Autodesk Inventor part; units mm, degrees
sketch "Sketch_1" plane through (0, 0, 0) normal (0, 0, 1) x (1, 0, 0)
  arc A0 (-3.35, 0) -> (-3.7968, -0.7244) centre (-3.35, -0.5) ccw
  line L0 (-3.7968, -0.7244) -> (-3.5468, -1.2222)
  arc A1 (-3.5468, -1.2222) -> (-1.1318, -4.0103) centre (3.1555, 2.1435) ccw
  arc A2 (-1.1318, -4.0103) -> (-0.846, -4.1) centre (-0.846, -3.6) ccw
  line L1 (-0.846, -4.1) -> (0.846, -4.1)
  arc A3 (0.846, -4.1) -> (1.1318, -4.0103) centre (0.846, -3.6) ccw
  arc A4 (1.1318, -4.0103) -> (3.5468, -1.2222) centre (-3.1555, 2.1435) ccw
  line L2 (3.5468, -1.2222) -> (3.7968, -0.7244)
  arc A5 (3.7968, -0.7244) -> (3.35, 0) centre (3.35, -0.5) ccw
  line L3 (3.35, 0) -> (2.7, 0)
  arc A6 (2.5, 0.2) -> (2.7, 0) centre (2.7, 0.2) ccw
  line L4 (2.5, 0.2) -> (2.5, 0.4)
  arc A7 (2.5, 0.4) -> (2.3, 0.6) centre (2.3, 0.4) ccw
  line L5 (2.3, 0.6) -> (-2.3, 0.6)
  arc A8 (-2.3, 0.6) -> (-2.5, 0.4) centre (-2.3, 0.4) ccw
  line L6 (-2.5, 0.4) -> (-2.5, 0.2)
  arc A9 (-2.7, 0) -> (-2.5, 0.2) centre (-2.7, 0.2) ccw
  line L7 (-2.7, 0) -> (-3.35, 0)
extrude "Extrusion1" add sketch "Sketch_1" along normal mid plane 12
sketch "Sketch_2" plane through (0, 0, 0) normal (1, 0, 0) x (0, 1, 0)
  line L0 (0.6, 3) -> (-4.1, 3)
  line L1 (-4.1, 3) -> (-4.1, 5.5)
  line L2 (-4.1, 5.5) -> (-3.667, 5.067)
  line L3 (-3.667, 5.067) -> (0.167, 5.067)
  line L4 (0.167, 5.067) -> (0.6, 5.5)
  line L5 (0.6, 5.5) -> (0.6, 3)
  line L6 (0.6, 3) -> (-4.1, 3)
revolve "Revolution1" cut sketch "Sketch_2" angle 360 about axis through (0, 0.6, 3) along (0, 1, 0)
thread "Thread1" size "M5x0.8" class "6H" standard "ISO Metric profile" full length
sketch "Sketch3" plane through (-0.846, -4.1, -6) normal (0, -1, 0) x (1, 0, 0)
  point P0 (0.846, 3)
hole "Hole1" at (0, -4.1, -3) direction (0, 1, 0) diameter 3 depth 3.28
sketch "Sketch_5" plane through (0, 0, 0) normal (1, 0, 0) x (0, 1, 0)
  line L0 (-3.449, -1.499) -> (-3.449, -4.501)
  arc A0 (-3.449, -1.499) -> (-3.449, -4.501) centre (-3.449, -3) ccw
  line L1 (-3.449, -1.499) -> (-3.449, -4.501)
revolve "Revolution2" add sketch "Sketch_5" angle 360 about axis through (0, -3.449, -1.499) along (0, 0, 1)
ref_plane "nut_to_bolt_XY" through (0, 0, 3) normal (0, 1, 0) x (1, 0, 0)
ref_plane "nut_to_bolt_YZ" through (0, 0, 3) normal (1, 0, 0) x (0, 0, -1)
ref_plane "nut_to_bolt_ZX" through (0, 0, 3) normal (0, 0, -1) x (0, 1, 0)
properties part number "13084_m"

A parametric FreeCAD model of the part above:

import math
import FreeCAD as App
import Part
import Sketcher


def add_polygon(sketch, points):
    """Adds a closed chain of lines whose ends are joined by coincident constraints."""
    first, n = sketch.GeometryCount, len(points)
    for a, b in zip(points, points[1:] + points[:1]):
        sketch.addGeometry(Part.LineSegment(App.Vector(*a, 0), App.Vector(*b, 0)), False)
    for i in range(n):
        sketch.addConstraint(Sketcher.Constraint("Coincident", first + i, 2, first + (i + 1) % n, 1))

doc = App.newDocument("Part")
params = doc.addObject("Spreadsheet::Sheet", "Params")
for row, (alias, value) in enumerate([
    ("sketch1_radius", "0.5 mm"),
    ("sketch1_radius2", "0.5 mm"),
    ("sketch1_radius3", "0.5 mm"),
    ("sketch1_radius4", "0.5 mm"),
    ("sketch1_radius5", "0.2 mm"),
    ("pad1_length", "12 mm"),
    ("sketch2_width", "4.7 mm"),
    ("sketch2_height", "2.5 mm"),
    ("groove_angle", "360 deg"),
    ("sketch3_diameter", "3 mm"),
    ("hole_diameter", "3 mm"),
    ("hole_depth", "3.28 mm"),
    ("revolution_angle", "360 deg"),
], start=1):
    params.set(f"A{row}", alias)
    params.set(f"B{row}", "=" + value)
    params.setAlias(f"B{row}", alias)

body = doc.addObject("PartDesign::Body", "Body")

sketch1 = doc.addObject("Sketcher::SketchObject", "Sketch")
body.addObject(sketch1)
sketch1.AttachmentSupport = (doc.XY_Plane, [""])
sketch1.MapMode = "FlatFace"
sketch1.addGeometry([
    Part.LineSegment(App.Vector(-2.7, 0, 0), App.Vector(-3.35, 0, 0)),
    Part.ArcOfCircle(Part.Circle(App.Vector(-3.35, -0.5, 0), App.Vector(0, 0, 1), 0.5), math.radians(90), math.radians(206.667548)),
    Part.LineSegment(App.Vector(-3.7968, -0.7244, 0), App.Vector(-3.5468, -1.2222, 0)),
    Part.ArcOfCircle(Part.Circle(App.Vector(3.156804, 2.144372, 0), App.Vector(0, 0, 1), 7.501474), math.radians(-153.334044), math.radians(-124.868961)),
    Part.ArcOfCircle(Part.Circle(App.Vector(-0.846, -3.6, 0), App.Vector(0, 0, 1), 0.500028), math.radians(-124.859661), math.radians(-90)),
    Part.LineSegment(App.Vector(-0.846, -4.1, 0), App.Vector(0.846, -4.1, 0)),
    Part.ArcOfCircle(Part.Circle(App.Vector(0.846, -3.6, 0), App.Vector(0, 0, 1), 0.5), math.radians(-90), math.radians(-55.140339)),
    Part.ArcOfCircle(Part.Circle(App.Vector(-3.154451, 2.142334, 0), App.Vector(0, 0, 1), 7.498457), math.radians(-55.136887), math.radians(-26.660108)),
    Part.LineSegment(App.Vector(3.5468, -1.2222, 0), App.Vector(3.7968, -0.7244, 0)),
    Part.ArcOfCircle(Part.Circle(App.Vector(3.35, -0.5, 0), App.Vector(0, 0, 1), 0.499986), math.radians(-26.667548), math.radians(90)),
    Part.LineSegment(App.Vector(3.35, 0, 0), App.Vector(2.7, 0, 0)),
    Part.ArcOfCircle(Part.Circle(App.Vector(2.7, 0.2, 0), App.Vector(0, 0, 1), 0.2), math.radians(180), math.radians(270)),
    Part.LineSegment(App.Vector(2.5, 0.2, 0), App.Vector(2.5, 0.4, 0)),
    Part.ArcOfCircle(Part.Circle(App.Vector(2.3, 0.4, 0), App.Vector(0, 0, 1), 0.2), math.radians(0), math.radians(90)),
    Part.LineSegment(App.Vector(2.3, 0.6, 0), App.Vector(-2.3, 0.6, 0)),
    Part.ArcOfCircle(Part.Circle(App.Vector(-2.3, 0.4, 0), App.Vector(0, 0, 1), 0.2), math.radians(90), math.radians(180)),
    Part.LineSegment(App.Vector(-2.5, 0.4, 0), App.Vector(-2.5, 0.2, 0)),
    Part.ArcOfCircle(Part.Circle(App.Vector(-2.7, 0.2, 0), App.Vector(0, 0, 1), 0.2), math.radians(-90), math.radians(0)),
], False)
sketch1.addConstraint([
    Sketcher.Constraint("Coincident", 0, 2, 1, 1),
    Sketcher.Constraint("Coincident", 1, 2, 2, 1),
    Sketcher.Constraint("Coincident", 2, 2, 3, 1),
    Sketcher.Constraint("Coincident", 3, 2, 4, 1),
    Sketcher.Constraint("Coincident", 4, 2, 5, 1),
    Sketcher.Constraint("Coincident", 5, 2, 6, 1),
    Sketcher.Constraint("Coincident", 6, 2, 7, 1),
    Sketcher.Constraint("Coincident", 7, 2, 8, 1),
    Sketcher.Constraint("Coincident", 8, 2, 9, 1),
    Sketcher.Constraint("Coincident", 9, 2, 10, 1),
    Sketcher.Constraint("Coincident", 10, 2, 11, 2),
    Sketcher.Constraint("Coincident", 11, 1, 12, 1),
    Sketcher.Constraint("Coincident", 12, 2, 13, 1),
    Sketcher.Constraint("Coincident", 13, 2, 14, 1),
    Sketcher.Constraint("Coincident", 14, 2, 15, 1),
    Sketcher.Constraint("Coincident", 15, 2, 16, 1),
    Sketcher.Constraint("Coincident", 16, 2, 17, 2),
    Sketcher.Constraint("Coincident", 17, 1, 0, 1),
    Sketcher.Constraint("Horizontal", 0),
    Sketcher.Constraint("Horizontal", 5),
    Sketcher.Constraint("Horizontal", 10),
    Sketcher.Constraint("Vertical", 12),
    Sketcher.Constraint("Horizontal", 14),
    Sketcher.Constraint("Vertical", 16),
    Sketcher.Constraint("PointOnObject", 0, 2, -1),
    Sketcher.Constraint("PointOnObject", 9, 2, -1),
    Sketcher.Constraint("Radius", 1, 0.5),
    Sketcher.Constraint("Radius", 4, 0.5),
    Sketcher.Constraint("Radius", 6, 0.5),
    Sketcher.Constraint("Radius", 9, 0.5),
    Sketcher.Constraint("Radius", 11, 0.2),
    Sketcher.Constraint("Radius", 13, 0.2),
    Sketcher.Constraint("Radius", 15, 0.2),
    Sketcher.Constraint("Radius", 17, 0.2),
    Sketcher.Constraint("DistanceX", 14, 2, 14, 1, 4.6),
    Sketcher.Constraint("DistanceY", 12, 1, 12, 2, 0.2),
    Sketcher.Constraint("DistanceY", 16, 2, 16, 1, 0.2),
    Sketcher.Constraint("DistanceY", 6, 3, 13, 3, 4.0),
    Sketcher.Constraint("DistanceX", 15, 3, 11, 3, 5.0),
    Sketcher.Constraint("DistanceX", 0, 2, 0, 1, 0.65),
    Sketcher.Constraint("DistanceX", 10, 2, 10, 1, 0.65),
    Sketcher.Constraint("DistanceY", 4, 3, -1, 1, 3.6),
    Sketcher.Constraint("DistanceX", -1, 1, 11, 3, 2.7),
    Sketcher.Constraint("DistanceX", -1, 1, 10, 2, 2.7),
    Sketcher.Constraint("DistanceY", -1, 1, 11, 1, 0.2),
    Sketcher.Constraint("DistanceX", -1, 1, 13, 2, 2.3),
    Sketcher.Constraint("DistanceY", -1, 1, 15, 2, 0.4),
    Sketcher.Constraint("DistanceX", 17, 1, -1, 1, 2.7),
    Sketcher.Constraint("Radius", 3, 7.5015),
    Sketcher.Constraint("Radius", 7, 7.4985),
    Sketcher.Constraint("DistanceX", 1, 3, 9, 3, 6.7),
    Sketcher.Constraint("DistanceX", 5, 1, 5, 2, 1.692),
    Sketcher.Constraint("DistanceX", 1, 3, -1, 1, 3.35),
    Sketcher.Constraint("DistanceX", 1, 2, 2, 2, 0.25),
    Sketcher.Constraint("DistanceX", 3, 3, 7, 2, 0.39),
    Sketcher.Constraint("DistanceX", 7, 2, 8, 2, 0.25),
    Sketcher.Constraint("Distance", 2, 0.557),
    Sketcher.Constraint("Distance", 8, 0.557),
    Sketcher.Constraint("DistanceX", 4, 3, -1, 1, 0.846),
    Sketcher.Constraint("DistanceX", -1, 1, 6, 3, 0.846),
    Sketcher.Constraint("DistanceX", 4, 2, -1, 1, 0.846),
    Sketcher.Constraint("DistanceX", 2, 2, 3, 2, 2.415),
    Sketcher.Constraint("DistanceY", 3, 2, 2, 2, 2.788),
    Sketcher.Constraint("DistanceX", -1, 1, 6, 2, 1.1318),
])
sketch1.setExpression("Constraints[26]", "Params.sketch1_radius")
sketch1.setExpression("Constraints[27]", "Params.sketch1_radius2")
sketch1.setExpression("Constraints[28]", "Params.sketch1_radius3")
sketch1.setExpression("Constraints[29]", "Params.sketch1_radius4")
sketch1.setExpression("Constraints[30]", "Params.sketch1_radius5")
pad1 = doc.addObject("PartDesign::Pad", "Pad")
body.addObject(pad1)
pad1.Profile = sketch1
pad1.setExpression("Length", "Params.pad1_length")
pad1.Midplane = True

sketch2 = doc.addObject("Sketcher::SketchObject", "Sketch001")
body.addObject(sketch2)
sketch2.AttachmentSupport = (doc.YZ_Plane, [""])
sketch2.MapMode = "FlatFace"
add_polygon(sketch2, [(-4.1, 3), (0.6, 3), (0.6, 5.5), (0.167, 5.067), (-3.667, 5.067), (-4.1, 5.5)])
sketch2.addGeometry(Part.LineSegment(App.Vector(-4.1, 3, 0), App.Vector(0.6, 3, 0)), True)
sketch2.addConstraint([
    Sketcher.Constraint("Horizontal", 0),
    Sketcher.Constraint("Vertical", 1),
    Sketcher.Constraint("Horizontal", 3),
    Sketcher.Constraint("Vertical", 5),
    Sketcher.Constraint("Horizontal", 6),
    Sketcher.Constraint("Coincident", 6, 1, 5, 2),
    Sketcher.Constraint("Perpendicular", 2, 4),
    Sketcher.Constraint("Horizontal", 1, 2, 4, 2),
    Sketcher.Constraint("Vertical", 1, 2, 6, 2),
    Sketcher.Constraint("Equal", 2, 4),
    Sketcher.Constraint("DistanceX", 0, 1, 0, 2, 4.7),
    Sketcher.Constraint("DistanceY", 1, 1, 1, 2, 2.5),
    Sketcher.Constraint("DistanceY", -1, 1, 0, 2, 3.0),
    Sketcher.Constraint("DistanceX", -1, 1, 0, 2, 0.6),
    Sketcher.Constraint("DistanceX", 3, 2, 3, 1, 3.834),
])
sketch2.setExpression("Constraints[16]", "Params.sketch2_width")
sketch2.setExpression("Constraints[17]", "Params.sketch2_height")
groove = doc.addObject("PartDesign::Groove", "Groove")
body.addObject(groove)
groove.Profile = sketch2
groove.ReferenceAxis = (sketch2, ["Axis0"])
groove.setExpression("Angle", "Params.groove_angle")

sketch3 = doc.addObject("Sketcher::SketchObject", "Sketch002")
body.addObject(sketch3)
sketch3.AttachmentSupport = (doc.XZ_Plane, [""])
sketch3.MapMode = "FlatFace"
sketch3.AttachmentOffset = App.Placement(App.Vector(0, 0, 4.1), App.Rotation())
sketch3.addGeometry(Part.Circle(App.Vector(0, -3, 0), App.Vector(0, 0, 1), 1.5), False)
sketch3.addConstraint([
    Sketcher.Constraint("PointOnObject", 0, 3, -2),
    Sketcher.Constraint("Diameter", 0, 3.0),
    Sketcher.Constraint("DistanceY", 0, 3, -1, 1, 3.0),
])
sketch3.setExpression("Constraints[1]", "Params.sketch3_diameter")
doc.recompute()
hole = doc.addObject("PartDesign::Hole", "Hole")
body.addObject(hole)
hole.Profile = sketch3
hole.ThreadType = "None"
hole.setExpression("Diameter", "Params.hole_diameter")
hole.DepthType = "Dimension"
hole.setExpression("Depth", "Params.hole_depth")
hole.DrillPoint = "Flat"

sketch4 = doc.addObject("Sketcher::SketchObject", "Sketch003")
body.addObject(sketch4)
sketch4.AttachmentSupport = (doc.YZ_Plane, [""])
sketch4.MapMode = "FlatFace"
sketch4.addGeometry([
    Part.LineSegment(App.Vector(-3.449, -4.501, 0), App.Vector(-3.449, -1.499, 0)),
    Part.ArcOfCircle(Part.Circle(App.Vector(-3.449, -3, 0), App.Vector(0, 0, 1), 1.501), math.radians(90), math.radians(270)),
], False)
sketch4.addGeometry(Part.LineSegment(App.Vector(-3.449, -4.501, 0), App.Vector(-3.449, -1.499, 0)), True)
sketch4.addConstraint([
    Sketcher.Constraint("Coincident", 0, 1, 1, 2),
    Sketcher.Constraint("Coincident", 1, 1, 0, 2),
    Sketcher.Constraint("Vertical", 0),
    Sketcher.Constraint("Vertical", 2),
    Sketcher.Constraint("Coincident", 2, 1, 0, 1),
    Sketcher.Constraint("Vertical", 1, 3, 0, 1),
    Sketcher.Constraint("Equal", 0, 2),
    Sketcher.Constraint("DistanceY", 1, 3, -1, 1, 3.0),
    Sketcher.Constraint("Radius", 1, 1.501),
    Sketcher.Constraint("DistanceX", 1, 3, -1, 1, 3.449),
])
revolution = doc.addObject("PartDesign::Revolution", "Revolution")
body.addObject(revolution)
revolution.Profile = sketch4
revolution.ReferenceAxis = (sketch4, ["Axis0"])
revolution.setExpression("Angle", "Params.revolution_angle")

doc.recompute()
